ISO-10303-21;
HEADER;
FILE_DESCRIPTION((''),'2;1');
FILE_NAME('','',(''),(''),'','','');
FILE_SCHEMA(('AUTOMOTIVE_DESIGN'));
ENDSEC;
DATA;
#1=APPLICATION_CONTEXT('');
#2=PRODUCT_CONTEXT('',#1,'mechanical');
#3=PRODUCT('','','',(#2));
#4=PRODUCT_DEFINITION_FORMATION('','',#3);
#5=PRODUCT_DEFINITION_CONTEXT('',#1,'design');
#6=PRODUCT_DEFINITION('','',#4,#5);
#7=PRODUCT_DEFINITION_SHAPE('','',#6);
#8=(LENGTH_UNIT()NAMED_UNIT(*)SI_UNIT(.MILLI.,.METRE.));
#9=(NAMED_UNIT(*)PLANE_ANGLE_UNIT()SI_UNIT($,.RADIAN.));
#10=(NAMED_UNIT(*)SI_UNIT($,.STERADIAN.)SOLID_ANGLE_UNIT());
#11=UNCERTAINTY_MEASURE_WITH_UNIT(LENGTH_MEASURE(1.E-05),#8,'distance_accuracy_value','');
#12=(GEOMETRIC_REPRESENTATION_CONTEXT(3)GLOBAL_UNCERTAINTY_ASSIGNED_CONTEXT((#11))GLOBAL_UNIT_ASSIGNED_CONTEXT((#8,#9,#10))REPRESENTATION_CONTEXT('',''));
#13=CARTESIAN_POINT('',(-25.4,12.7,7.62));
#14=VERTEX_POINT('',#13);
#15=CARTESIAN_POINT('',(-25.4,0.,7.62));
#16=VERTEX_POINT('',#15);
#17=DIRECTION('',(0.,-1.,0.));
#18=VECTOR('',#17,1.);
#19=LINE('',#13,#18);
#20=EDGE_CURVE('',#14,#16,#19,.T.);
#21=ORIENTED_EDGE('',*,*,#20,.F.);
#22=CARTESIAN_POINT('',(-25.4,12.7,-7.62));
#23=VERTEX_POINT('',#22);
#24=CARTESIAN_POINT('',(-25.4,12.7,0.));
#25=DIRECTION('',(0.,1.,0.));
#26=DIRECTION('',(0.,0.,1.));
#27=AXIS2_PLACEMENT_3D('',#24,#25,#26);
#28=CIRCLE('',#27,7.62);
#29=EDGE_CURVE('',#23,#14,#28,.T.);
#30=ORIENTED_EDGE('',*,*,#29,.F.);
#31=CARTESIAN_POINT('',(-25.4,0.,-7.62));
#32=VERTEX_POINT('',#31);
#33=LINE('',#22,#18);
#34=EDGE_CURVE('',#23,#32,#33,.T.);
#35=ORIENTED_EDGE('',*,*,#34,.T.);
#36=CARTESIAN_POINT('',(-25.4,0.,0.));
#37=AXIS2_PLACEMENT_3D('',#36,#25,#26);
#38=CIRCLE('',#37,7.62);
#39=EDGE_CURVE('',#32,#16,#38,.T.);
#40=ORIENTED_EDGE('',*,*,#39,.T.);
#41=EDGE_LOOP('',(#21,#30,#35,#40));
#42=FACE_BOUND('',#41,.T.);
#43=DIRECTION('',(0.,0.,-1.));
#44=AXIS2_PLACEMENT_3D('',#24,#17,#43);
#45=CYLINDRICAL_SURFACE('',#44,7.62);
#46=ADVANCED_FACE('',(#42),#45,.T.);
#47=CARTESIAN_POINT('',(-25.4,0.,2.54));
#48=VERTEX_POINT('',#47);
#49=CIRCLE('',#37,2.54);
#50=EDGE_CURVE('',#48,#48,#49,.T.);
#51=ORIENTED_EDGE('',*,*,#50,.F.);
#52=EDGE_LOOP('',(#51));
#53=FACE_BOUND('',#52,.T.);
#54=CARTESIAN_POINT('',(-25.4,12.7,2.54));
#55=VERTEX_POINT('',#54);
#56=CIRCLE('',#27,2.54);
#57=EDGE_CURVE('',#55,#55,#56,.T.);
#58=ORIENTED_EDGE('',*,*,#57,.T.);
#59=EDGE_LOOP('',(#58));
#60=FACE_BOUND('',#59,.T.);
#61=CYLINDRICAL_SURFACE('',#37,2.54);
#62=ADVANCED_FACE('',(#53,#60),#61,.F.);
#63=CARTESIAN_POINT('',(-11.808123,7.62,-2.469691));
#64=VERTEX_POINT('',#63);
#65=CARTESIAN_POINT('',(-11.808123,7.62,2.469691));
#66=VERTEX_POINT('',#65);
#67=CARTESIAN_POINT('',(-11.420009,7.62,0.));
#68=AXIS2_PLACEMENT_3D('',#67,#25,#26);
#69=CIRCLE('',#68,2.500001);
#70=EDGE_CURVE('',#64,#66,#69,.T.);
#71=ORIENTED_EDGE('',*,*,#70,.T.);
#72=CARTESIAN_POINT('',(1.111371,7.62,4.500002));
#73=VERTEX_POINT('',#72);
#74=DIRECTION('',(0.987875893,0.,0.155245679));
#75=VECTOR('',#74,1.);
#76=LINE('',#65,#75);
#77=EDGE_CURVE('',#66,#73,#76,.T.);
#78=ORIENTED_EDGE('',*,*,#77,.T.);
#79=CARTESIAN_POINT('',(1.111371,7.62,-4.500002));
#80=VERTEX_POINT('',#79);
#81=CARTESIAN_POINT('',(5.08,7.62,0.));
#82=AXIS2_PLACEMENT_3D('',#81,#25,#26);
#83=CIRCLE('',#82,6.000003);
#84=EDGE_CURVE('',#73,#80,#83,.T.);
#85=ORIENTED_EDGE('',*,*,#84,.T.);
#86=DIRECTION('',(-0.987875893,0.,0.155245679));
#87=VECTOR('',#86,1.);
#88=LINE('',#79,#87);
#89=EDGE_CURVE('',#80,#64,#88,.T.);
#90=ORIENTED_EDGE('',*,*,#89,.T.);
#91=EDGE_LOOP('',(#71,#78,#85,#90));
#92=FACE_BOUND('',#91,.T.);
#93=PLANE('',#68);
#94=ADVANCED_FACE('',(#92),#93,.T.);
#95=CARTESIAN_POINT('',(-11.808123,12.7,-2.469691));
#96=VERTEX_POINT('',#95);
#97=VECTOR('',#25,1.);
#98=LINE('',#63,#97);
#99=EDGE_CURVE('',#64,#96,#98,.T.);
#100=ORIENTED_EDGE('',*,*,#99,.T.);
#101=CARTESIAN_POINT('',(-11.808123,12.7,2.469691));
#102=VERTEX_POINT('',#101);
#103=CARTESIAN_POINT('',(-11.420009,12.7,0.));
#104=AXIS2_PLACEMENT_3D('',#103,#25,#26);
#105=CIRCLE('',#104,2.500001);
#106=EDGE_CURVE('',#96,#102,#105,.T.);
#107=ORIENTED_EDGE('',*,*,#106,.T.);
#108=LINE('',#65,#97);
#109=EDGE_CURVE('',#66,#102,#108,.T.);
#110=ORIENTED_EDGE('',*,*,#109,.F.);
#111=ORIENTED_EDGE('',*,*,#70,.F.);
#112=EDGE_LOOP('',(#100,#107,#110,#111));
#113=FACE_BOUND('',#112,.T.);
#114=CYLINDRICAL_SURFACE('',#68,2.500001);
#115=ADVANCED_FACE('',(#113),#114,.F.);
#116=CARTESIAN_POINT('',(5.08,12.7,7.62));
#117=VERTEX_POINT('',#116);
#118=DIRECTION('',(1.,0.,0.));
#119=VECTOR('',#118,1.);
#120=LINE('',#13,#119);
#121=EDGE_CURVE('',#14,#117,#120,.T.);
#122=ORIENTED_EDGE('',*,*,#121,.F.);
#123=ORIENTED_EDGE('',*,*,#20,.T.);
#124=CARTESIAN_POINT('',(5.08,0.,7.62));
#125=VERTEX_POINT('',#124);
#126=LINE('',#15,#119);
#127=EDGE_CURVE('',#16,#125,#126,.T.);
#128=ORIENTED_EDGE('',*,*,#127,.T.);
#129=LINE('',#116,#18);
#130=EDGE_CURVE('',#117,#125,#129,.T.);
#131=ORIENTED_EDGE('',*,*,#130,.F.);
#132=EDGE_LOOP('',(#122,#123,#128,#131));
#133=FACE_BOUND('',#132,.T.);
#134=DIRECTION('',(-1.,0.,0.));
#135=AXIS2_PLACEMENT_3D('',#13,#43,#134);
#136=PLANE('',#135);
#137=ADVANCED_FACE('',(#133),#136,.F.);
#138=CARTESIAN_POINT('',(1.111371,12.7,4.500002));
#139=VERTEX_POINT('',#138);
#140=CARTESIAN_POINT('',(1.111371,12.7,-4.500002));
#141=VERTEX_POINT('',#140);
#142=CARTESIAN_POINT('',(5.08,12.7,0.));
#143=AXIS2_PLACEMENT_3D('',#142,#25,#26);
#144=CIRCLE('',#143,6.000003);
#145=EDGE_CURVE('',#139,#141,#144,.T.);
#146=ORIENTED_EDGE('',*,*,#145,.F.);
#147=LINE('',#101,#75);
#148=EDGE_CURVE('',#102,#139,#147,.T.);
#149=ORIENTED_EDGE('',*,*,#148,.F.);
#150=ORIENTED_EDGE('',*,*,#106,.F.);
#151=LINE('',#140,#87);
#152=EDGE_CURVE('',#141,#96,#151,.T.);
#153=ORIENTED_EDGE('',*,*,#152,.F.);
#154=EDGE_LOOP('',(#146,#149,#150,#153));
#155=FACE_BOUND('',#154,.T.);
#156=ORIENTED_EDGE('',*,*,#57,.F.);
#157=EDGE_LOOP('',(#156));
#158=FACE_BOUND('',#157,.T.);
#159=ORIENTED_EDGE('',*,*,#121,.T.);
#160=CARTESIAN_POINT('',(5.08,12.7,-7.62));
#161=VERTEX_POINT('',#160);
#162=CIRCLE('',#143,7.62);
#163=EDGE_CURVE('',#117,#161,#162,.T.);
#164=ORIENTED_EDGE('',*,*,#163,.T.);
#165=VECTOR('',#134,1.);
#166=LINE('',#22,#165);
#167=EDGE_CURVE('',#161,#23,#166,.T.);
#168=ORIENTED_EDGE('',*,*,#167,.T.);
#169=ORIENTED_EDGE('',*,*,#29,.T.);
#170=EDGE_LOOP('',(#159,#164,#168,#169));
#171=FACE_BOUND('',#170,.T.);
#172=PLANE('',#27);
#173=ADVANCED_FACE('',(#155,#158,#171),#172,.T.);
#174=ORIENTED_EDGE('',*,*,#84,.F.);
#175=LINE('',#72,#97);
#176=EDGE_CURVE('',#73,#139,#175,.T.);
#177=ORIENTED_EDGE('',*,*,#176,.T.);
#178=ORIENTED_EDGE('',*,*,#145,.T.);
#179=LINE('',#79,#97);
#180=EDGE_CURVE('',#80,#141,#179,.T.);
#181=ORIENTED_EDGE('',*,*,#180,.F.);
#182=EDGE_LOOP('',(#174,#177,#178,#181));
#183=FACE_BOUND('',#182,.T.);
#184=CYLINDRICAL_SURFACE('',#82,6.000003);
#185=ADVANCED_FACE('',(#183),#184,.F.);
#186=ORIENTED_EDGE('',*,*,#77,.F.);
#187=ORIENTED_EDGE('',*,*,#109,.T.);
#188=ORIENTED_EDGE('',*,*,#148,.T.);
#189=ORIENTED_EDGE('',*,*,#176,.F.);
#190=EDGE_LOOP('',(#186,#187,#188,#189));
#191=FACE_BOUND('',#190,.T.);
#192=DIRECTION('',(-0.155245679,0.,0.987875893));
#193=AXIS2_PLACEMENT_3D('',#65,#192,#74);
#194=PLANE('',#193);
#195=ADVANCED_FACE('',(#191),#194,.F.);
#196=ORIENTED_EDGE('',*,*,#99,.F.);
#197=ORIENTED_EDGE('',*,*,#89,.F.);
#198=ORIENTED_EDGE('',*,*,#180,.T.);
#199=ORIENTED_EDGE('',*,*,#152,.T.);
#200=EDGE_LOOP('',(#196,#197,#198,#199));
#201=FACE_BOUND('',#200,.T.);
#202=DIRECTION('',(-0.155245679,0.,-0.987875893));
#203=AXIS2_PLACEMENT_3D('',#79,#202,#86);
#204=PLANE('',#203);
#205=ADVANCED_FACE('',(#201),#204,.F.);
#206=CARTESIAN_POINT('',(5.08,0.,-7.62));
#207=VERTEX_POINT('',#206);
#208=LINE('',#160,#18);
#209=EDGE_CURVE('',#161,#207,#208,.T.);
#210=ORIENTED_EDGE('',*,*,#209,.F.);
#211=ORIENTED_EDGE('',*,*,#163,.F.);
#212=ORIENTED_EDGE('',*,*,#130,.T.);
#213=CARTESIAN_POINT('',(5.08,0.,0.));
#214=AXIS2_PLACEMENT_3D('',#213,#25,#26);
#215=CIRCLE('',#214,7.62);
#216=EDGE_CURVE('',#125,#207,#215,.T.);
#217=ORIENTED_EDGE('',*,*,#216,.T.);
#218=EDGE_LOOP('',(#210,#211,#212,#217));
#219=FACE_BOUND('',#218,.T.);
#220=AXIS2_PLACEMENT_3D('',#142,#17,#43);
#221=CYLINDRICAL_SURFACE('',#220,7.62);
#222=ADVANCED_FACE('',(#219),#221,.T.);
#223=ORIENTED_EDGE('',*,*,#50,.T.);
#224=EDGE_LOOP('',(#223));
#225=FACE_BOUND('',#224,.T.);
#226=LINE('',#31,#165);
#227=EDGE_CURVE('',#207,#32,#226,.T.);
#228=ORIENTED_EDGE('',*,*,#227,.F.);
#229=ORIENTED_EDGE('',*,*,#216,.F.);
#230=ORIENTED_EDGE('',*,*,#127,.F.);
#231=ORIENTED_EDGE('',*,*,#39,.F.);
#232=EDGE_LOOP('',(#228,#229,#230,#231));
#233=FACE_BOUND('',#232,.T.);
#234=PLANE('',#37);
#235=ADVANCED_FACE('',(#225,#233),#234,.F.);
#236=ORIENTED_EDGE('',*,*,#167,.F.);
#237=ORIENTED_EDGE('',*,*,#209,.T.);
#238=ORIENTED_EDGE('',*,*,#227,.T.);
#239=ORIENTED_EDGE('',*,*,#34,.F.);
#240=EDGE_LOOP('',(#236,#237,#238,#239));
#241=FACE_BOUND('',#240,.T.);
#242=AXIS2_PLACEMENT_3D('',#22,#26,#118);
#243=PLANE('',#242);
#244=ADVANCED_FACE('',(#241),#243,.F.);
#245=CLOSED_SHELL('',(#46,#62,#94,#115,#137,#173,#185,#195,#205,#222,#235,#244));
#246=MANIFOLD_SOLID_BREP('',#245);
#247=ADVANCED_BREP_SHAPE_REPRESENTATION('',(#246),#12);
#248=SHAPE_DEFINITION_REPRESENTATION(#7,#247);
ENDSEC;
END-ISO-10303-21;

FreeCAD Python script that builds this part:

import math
import FreeCAD as App
import Part
import Sketcher
Q = App.Units.Quantity

doc = App.newDocument("Part")
body = doc.addObject("PartDesign::Body", "Body")

sketch1 = body.newObject("Sketcher::SketchObject", "Sketch")
sketch1.AttachmentSupport = (doc.getObject("XZ_Plane"), [""])
sketch1.MapMode = "FlatFace"
sketch1.addGeometry([
    Part.LineSegment(App.Vector(5, -8, 0), App.Vector(-25, -8, 0)),
    Part.ArcOfCircle(Part.Circle(App.Vector(-25, 0, 0), App.Vector(0, 0, 1), 8), math.radians(90), math.radians(270)),
    Part.LineSegment(App.Vector(-25, 8, 0), App.Vector(5, 8, 0)),
    Part.ArcOfCircle(Part.Circle(App.Vector(5, 0, 0), App.Vector(0, 0, 1), 8), math.radians(-90), math.radians(90)),
], False)
sketch1.addConstraint([
    Sketcher.Constraint("Tangent", 0, 2, 1, 2),
    Sketcher.Constraint("Tangent", 1, 1, 2, 1),
    Sketcher.Constraint("Tangent", 2, 2, 3, 2),
    Sketcher.Constraint("Tangent", 3, 1, 0, 1),
    Sketcher.Constraint("Horizontal", 0),
    Sketcher.Constraint("Horizontal", 2),
    Sketcher.Constraint("PointOnObject", 1, 3, -1),
    Sketcher.Constraint("Radius", 1, Q("0.3 in")),
    Sketcher.Constraint("DistanceX", 0, 2, 0, 1, Q("1.2 in")),
    Sketcher.Constraint("DistanceX", 1, 3, -1, 1, Q("1 in")),
])
pad1 = body.newObject("PartDesign::Pad", "Pad")
pad1.Profile = sketch1
pad1.Length = Q("0.5 in")
pad1.Reversed = True

sketch2 = body.newObject("Sketcher::SketchObject", "Sketch001")
sketch2.AttachmentSupport = (doc.getObject("XZ_Plane"), [""])
sketch2.MapMode = "FlatFace"
sketch2.AttachmentOffset = App.Placement(App.Vector(0, 0, -0.5 * 25.4), App.Rotation())
sketch2.addGeometry(Part.Circle(App.Vector(-25.4, 0, 0), App.Vector(0, 0, 1), 2.5), False)
sketch2.addConstraint([
    Sketcher.Constraint("PointOnObject", 0, 3, -1),
    Sketcher.Constraint("Diameter", 0, Q("0.2 in")),
    Sketcher.Constraint("DistanceX", 0, 3, -1, 1, Q("1 in")),
])
pocket1 = body.newObject("PartDesign::Pocket", "Pocket")
pocket1.Profile = sketch2
pocket1.Type = "ThroughAll"
pocket1.Reversed = True

sketch3 = body.newObject("Sketcher::SketchObject", "Sketch002")
sketch3.AttachmentSupport = (doc.getObject("XZ_Plane"), [""])
sketch3.MapMode = "FlatFace"
sketch3.AttachmentOffset = App.Placement(App.Vector(0, 0, -0.5 * 25.4), App.Rotation())
sketch3.addGeometry([
    Part.LineSegment(App.Vector(-11.8, 2.5, 0), App.Vector(1.1, 4.5, 0)),
    Part.ArcOfCircle(Part.Circle(App.Vector(5.1, 0, 0), App.Vector(0, 0, 1), 6), math.radians(-131), math.radians(131)),
    Part.LineSegment(App.Vector(1.1, -4.5, 0), App.Vector(-11.8, -2.5, 0)),
    Part.ArcOfCircle(Part.Circle(App.Vector(-11.4, 0, 0), App.Vector(0, 0, 1), 2.5), math.radians(99), math.radians(261)),
], False)
sketch3.addConstraint([
    Sketcher.Constraint("Coincident", 0, 2, 1, 2),
    Sketcher.Constraint("Coincident", 1, 1, 2, 1),
    Sketcher.Constraint("Tangent", 2, 2, 3, 2),
    Sketcher.Constraint("Tangent", 3, 1, 0, 1),
    Sketcher.Constraint("Symmetric", 0, 2, 1, 1, -1),
    Sketcher.Constraint("PointOnObject", 3, 3, -1),
    Sketcher.Constraint("DistanceX", -1, 1, 1, 3, Q("0.2 in")),
    Sketcher.Constraint("Radius", 3, 2.500001),
    Sketcher.Constraint("Radius", 1, 6.000003),
    Sketcher.Constraint("DistanceX", 3, 3, -1, 1, 11.420009),
    Sketcher.Constraint("DistanceX", -1, 1, 0, 2, 1.111371),
])
pocket2 = body.newObject("PartDesign::Pocket", "Pocket001")
pocket2.Profile = sketch3
pocket2.Length = Q("0.2 in")
pocket2.Reversed = True

doc.recompute()
